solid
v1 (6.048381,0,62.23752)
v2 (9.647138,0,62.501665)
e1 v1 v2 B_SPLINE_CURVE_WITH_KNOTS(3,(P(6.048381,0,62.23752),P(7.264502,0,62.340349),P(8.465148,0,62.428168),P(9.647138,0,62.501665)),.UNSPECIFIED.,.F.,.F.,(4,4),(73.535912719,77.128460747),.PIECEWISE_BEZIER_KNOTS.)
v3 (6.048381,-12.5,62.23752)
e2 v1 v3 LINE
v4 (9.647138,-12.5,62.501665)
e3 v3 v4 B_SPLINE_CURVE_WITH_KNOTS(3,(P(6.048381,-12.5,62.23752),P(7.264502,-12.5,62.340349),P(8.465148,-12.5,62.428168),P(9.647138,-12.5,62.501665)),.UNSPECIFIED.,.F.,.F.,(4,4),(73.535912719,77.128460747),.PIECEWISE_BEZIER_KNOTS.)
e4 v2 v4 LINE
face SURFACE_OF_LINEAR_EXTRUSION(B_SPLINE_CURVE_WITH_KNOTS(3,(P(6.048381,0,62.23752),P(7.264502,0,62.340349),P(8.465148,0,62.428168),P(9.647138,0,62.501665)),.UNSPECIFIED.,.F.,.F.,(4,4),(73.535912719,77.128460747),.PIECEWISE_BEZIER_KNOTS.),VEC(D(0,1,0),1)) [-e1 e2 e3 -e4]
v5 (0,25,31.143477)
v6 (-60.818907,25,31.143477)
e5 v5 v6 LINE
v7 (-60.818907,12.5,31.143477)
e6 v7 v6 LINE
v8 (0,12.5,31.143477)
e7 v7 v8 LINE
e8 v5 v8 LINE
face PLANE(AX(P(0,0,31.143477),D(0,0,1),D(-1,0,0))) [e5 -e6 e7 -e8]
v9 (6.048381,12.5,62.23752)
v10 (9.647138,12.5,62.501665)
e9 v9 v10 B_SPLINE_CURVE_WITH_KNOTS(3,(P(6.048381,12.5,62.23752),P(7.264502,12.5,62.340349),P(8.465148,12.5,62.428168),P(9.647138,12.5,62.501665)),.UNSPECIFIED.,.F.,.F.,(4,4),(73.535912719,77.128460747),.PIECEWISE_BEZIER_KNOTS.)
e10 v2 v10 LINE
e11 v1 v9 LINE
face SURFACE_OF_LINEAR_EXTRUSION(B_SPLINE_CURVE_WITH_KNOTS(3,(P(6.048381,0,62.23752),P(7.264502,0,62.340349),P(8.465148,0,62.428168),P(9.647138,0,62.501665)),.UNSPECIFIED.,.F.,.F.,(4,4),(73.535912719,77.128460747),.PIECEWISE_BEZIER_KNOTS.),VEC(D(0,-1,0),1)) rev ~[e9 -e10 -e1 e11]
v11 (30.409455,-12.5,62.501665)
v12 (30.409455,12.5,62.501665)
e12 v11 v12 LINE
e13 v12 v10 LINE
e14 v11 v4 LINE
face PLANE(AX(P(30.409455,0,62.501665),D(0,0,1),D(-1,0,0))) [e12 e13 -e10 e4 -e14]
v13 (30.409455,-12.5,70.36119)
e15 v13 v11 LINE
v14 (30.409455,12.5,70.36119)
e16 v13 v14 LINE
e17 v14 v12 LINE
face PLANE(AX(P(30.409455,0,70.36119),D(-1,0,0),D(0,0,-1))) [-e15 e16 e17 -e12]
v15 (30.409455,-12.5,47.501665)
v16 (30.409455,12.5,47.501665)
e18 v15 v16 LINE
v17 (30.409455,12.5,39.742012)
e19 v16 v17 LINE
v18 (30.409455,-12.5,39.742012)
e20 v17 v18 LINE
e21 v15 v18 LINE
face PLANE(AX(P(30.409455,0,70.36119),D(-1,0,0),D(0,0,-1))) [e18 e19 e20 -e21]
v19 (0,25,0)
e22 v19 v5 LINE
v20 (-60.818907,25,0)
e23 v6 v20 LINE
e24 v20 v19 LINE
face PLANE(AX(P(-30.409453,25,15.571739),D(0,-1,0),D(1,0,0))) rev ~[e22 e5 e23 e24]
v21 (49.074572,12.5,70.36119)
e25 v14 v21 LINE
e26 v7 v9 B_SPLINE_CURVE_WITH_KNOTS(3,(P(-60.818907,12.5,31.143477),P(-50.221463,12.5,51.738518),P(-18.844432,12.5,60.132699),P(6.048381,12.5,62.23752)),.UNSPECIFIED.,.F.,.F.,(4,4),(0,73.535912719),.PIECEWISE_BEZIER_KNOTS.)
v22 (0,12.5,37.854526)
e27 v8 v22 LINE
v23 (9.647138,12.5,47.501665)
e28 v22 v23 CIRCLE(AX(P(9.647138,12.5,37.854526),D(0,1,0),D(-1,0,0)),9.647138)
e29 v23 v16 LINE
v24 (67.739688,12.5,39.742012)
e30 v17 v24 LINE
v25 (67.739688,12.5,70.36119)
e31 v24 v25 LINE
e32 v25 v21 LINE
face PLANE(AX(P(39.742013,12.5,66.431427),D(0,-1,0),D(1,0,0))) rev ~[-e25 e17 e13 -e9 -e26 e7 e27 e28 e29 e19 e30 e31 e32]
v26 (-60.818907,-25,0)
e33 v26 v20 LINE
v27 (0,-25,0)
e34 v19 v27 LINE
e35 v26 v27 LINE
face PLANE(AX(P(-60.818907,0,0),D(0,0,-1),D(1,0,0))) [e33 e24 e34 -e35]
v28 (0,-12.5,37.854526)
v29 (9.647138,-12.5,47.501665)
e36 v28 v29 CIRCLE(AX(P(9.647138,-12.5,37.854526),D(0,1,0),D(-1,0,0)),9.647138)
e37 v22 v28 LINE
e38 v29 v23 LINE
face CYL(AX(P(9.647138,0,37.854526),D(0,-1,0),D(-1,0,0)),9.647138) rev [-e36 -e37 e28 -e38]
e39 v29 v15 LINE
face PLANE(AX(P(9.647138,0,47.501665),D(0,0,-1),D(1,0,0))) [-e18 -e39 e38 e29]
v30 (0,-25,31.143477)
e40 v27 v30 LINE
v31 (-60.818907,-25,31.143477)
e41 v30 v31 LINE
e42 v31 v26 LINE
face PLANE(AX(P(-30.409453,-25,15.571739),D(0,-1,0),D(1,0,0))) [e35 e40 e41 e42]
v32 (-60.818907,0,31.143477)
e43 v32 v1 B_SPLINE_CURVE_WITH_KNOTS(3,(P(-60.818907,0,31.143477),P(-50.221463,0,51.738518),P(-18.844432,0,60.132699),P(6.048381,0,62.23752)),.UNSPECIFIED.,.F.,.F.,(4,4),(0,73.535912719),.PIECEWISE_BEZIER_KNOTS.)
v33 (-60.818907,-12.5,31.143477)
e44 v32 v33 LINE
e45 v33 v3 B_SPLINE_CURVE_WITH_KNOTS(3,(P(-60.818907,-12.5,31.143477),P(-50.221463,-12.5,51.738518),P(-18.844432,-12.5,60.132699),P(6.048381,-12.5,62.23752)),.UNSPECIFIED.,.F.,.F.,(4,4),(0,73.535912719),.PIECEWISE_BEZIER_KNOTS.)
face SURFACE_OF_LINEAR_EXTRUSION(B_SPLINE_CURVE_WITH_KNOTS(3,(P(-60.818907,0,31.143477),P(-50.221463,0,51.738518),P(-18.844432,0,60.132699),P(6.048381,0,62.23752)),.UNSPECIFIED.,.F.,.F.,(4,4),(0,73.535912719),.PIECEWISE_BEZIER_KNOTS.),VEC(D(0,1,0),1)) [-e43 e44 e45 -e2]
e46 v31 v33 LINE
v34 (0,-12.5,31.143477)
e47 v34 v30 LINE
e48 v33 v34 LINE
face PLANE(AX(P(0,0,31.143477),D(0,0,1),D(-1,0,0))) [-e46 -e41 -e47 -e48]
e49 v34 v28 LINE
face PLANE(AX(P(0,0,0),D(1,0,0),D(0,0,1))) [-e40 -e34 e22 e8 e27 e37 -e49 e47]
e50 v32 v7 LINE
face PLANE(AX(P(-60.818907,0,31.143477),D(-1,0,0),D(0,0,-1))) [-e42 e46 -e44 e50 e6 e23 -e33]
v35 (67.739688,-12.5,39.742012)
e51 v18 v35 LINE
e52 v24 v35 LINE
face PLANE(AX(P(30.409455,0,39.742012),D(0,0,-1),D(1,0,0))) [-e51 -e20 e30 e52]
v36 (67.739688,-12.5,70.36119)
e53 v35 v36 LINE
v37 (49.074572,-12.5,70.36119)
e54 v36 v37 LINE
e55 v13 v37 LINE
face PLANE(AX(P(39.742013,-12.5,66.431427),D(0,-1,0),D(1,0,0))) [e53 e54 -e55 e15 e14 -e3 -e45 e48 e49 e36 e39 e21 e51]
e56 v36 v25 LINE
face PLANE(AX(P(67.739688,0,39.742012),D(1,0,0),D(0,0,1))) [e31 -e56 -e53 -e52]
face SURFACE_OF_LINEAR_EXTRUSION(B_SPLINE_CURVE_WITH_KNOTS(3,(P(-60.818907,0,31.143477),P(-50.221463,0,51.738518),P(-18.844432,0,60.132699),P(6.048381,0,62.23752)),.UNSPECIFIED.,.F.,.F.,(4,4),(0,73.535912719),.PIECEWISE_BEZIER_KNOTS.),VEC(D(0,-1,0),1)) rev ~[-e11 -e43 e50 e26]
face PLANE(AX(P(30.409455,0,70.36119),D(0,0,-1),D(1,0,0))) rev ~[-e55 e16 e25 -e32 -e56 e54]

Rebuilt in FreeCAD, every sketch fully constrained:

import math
import FreeCAD as App
import Part
import Sketcher
from FreeCAD import Vector
Q = App.Units.Quantity

doc = App.newDocument("Part")
body = doc.addObject("PartDesign::Body", "Body")

sketch1 = body.newObject("Sketcher::SketchObject", "Sketch")
sketch1.AttachmentSupport = (doc.getObject("XZ_Plane"), [""])
sketch1.MapMode = "FlatFace"
sketch1.addGeometry(Part.BSplineCurve([Vector(-60.818907, 31.143477, 0), Vector(-50.221463, 51.738518, 0), Vector(-18.844432, 60.132699, 0), Vector(6.048381, 62.23752, 0)], [4, 4], [0, 73.535912719], False, 3, [1, 1, 1, 1], False), False)
sketch1.addGeometry(Part.LineSegment(Vector(-60.818907, 31.143477, 0), Vector(0, 31.143477, 0)), False)
sketch1.addGeometry(Part.LineSegment(Vector(0, 31.143477, 0), Vector(0, 37.854526, 0)), False)
sketch1.addGeometry(Part.ArcOfCircle(Part.Circle(Vector(9.647138, 37.854526, 0), Vector(0, 0, 1), 9.647138), math.radians(90), math.radians(180)), False)
sketch1.addGeometry(Part.LineSegment(Vector(9.647138, 47.501665, 0), Vector(30.409455, 47.501665, 0)), False)
sketch1.addGeometry(Part.LineSegment(Vector(30.409455, 47.501665, 0), Vector(30.409455, 62.501665, 0)), False)
sketch1.addGeometry(Part.LineSegment(Vector(30.409455, 62.501665, 0), Vector(9.647138, 62.501665, 0)), False)
sketch1.addGeometry(Part.BSplineCurve([Vector(6.048381, 62.23752, 0), Vector(7.264502, 62.340349, 0), Vector(8.465148, 62.428168, 0), Vector(9.647138, 62.501665, 0)], [4, 4], [73.535912719, 77.128460747], False, 3, [1, 1, 1, 1], False), False)
sketch1.addConstraint(Sketcher.Constraint("Block", 0))
sketch1.addConstraint(Sketcher.Constraint("Block", 7))
sketch1.addConstraint(Sketcher.Constraint("Coincident", 0, 1, 1, 1))
sketch1.addConstraint(Sketcher.Constraint("Coincident", 1, 2, 2, 1))
sketch1.addConstraint(Sketcher.Constraint("Tangent", 2, 2, 3, 2))
sketch1.addConstraint(Sketcher.Constraint("Tangent", 3, 1, 4, 1))
sketch1.addConstraint(Sketcher.Constraint("Coincident", 4, 2, 5, 1))
sketch1.addConstraint(Sketcher.Constraint("Coincident", 5, 2, 6, 1))
sketch1.addConstraint(Sketcher.Constraint("Coincident", 6, 2, 7, 2))
sketch1.addConstraint(Sketcher.Constraint("Horizontal", 1))
sketch1.addConstraint(Sketcher.Constraint("Vertical", 2))
sketch1.addConstraint(Sketcher.Constraint("Horizontal", 4))
sketch1.addConstraint(Sketcher.Constraint("Vertical", 5))
sketch1.addConstraint(Sketcher.Constraint("Horizontal", 6))
sketch1.addConstraint(Sketcher.Constraint("PointOnObject", 1, 2, -2))
sketch1.addConstraint(Sketcher.Constraint("Vertical", 3, 1, 6, 2))
sketch1.addConstraint(Sketcher.Constraint("DistanceY", 5, 1, 5, 2, Q("15 mm")))
sketch1.addConstraint(Sketcher.Constraint("DistanceX", 4, 1, 4, 2, Q("20.762317 mm")))
pad1 = body.newObject("PartDesign::Pad", "Pad")
pad1.Profile = sketch1
pad1.Length = 25
pad1.Midplane = True

sketch2 = body.newObject("Sketcher::SketchObject", "Sketch001")
sketch2.AttachmentSupport = (doc.getObject("XZ_Plane"), [""])
sketch2.MapMode = "FlatFace"
sketch2.addGeometry(Part.LineSegment(Vector(-60.818907, 0, 0), Vector(0, 0, 0)), False)
sketch2.addGeometry(Part.LineSegment(Vector(0, 0, 0), Vector(0, 31.143477, 0)), False)
sketch2.addGeometry(Part.LineSegment(Vector(0, 31.143477, 0), Vector(-60.818907, 31.143477, 0)), False)
sketch2.addGeometry(Part.LineSegment(Vector(-60.818907, 31.143477, 0), Vector(-60.818907, 0, 0)), False)
sketch2.addConstraint(Sketcher.Constraint("Coincident", 0, 2, 1, 1))
sketch2.addConstraint(Sketcher.Constraint("Coincident", 1, 2, 2, 1))
sketch2.addConstraint(Sketcher.Constraint("Coincident", 2, 2, 3, 1))
sketch2.addConstraint(Sketcher.Constraint("Coincident", 3, 2, 0, 1))
sketch2.addConstraint(Sketcher.Constraint("Horizontal", 0))
sketch2.addConstraint(Sketcher.Constraint("Vertical", 1))
sketch2.addConstraint(Sketcher.Constraint("Horizontal", 2))
sketch2.addConstraint(Sketcher.Constraint("Vertical", 3))
sketch2.addConstraint(Sketcher.Constraint("Coincident", 0, 2, -1, 1))
sketch2.addConstraint(Sketcher.Constraint("DistanceX", 0, 1, 0, 2, Q("60.818907 mm")))
sketch2.addConstraint(Sketcher.Constraint("DistanceY", 1, 1, 1, 2, Q("31.143477 mm")))
pad2 = body.newObject("PartDesign::Pad", "Pad001")
pad2.Profile = sketch2
pad2.Length = 50
pad2.Midplane = True

sketch3 = body.newObject("Sketcher::SketchObject", "Sketch002")
sketch3.AttachmentSupport = (doc.getObject("XZ_Plane"), [""])
sketch3.MapMode = "FlatFace"
sketch3.addGeometry(Part.LineSegment(Vector(30.409455, 70.36119, 0), Vector(30.409455, 39.742012, 0)), False)
sketch3.addGeometry(Part.LineSegment(Vector(30.409455, 39.742012, 0), Vector(67.739688, 39.742012, 0)), False)
sketch3.addGeometry(Part.LineSegment(Vector(67.739688, 39.742012, 0), Vector(67.739688, 70.36119, 0)), False)
sketch3.addGeometry(Part.LineSegment(Vector(67.739688, 70.36119, 0), Vector(49.074572, 70.36119, 0)), False)
sketch3.addGeometry(Part.LineSegment(Vector(49.074572, 70.36119, 0), Vector(30.409455, 70.36119, 0)), False)
sketch3.addConstraint(Sketcher.Constraint("Coincident", 0, 2, 1, 1))
sketch3.addConstraint(Sketcher.Constraint("Coincident", 1, 2, 2, 1))
sketch3.addConstraint(Sketcher.Constraint("Coincident", 2, 2, 3, 1))
sketch3.addConstraint(Sketcher.Constraint("Coincident", 3, 2, 4, 1))
sketch3.addConstraint(Sketcher.Constraint("Coincident", 4, 2, 0, 1))
sketch3.addConstraint(Sketcher.Constraint("Vertical", 0))
sketch3.addConstraint(Sketcher.Constraint("Horizontal", 1))
sketch3.addConstraint(Sketcher.Constraint("Vertical", 2))
sketch3.addConstraint(Sketcher.Constraint("Horizontal", 3))
sketch3.addConstraint(Sketcher.Constraint("Horizontal", 4))
sketch3.addConstraint(Sketcher.Constraint("Equal", 3, 4))
sketch3.addConstraint(Sketcher.Constraint("DistanceX", 1, 1, 1, 2, Q("37.330233 mm")))
sketch3.addConstraint(Sketcher.Constraint("DistanceY", 0, 2, 0, 1, Q("30.619178 mm")))
sketch3.addConstraint(Sketcher.Constraint("DistanceY", -1, 1, 0, 2, Q("39.742012 mm")))
sketch3.addConstraint(Sketcher.Constraint("DistanceX", -1, 1, 3, 2, Q("49.074572 mm")))
pad3 = body.newObject("PartDesign::Pad", "Pad002")
pad3.Profile = sketch3
pad3.Length = 25
pad3.Midplane = True

doc.recompute()
